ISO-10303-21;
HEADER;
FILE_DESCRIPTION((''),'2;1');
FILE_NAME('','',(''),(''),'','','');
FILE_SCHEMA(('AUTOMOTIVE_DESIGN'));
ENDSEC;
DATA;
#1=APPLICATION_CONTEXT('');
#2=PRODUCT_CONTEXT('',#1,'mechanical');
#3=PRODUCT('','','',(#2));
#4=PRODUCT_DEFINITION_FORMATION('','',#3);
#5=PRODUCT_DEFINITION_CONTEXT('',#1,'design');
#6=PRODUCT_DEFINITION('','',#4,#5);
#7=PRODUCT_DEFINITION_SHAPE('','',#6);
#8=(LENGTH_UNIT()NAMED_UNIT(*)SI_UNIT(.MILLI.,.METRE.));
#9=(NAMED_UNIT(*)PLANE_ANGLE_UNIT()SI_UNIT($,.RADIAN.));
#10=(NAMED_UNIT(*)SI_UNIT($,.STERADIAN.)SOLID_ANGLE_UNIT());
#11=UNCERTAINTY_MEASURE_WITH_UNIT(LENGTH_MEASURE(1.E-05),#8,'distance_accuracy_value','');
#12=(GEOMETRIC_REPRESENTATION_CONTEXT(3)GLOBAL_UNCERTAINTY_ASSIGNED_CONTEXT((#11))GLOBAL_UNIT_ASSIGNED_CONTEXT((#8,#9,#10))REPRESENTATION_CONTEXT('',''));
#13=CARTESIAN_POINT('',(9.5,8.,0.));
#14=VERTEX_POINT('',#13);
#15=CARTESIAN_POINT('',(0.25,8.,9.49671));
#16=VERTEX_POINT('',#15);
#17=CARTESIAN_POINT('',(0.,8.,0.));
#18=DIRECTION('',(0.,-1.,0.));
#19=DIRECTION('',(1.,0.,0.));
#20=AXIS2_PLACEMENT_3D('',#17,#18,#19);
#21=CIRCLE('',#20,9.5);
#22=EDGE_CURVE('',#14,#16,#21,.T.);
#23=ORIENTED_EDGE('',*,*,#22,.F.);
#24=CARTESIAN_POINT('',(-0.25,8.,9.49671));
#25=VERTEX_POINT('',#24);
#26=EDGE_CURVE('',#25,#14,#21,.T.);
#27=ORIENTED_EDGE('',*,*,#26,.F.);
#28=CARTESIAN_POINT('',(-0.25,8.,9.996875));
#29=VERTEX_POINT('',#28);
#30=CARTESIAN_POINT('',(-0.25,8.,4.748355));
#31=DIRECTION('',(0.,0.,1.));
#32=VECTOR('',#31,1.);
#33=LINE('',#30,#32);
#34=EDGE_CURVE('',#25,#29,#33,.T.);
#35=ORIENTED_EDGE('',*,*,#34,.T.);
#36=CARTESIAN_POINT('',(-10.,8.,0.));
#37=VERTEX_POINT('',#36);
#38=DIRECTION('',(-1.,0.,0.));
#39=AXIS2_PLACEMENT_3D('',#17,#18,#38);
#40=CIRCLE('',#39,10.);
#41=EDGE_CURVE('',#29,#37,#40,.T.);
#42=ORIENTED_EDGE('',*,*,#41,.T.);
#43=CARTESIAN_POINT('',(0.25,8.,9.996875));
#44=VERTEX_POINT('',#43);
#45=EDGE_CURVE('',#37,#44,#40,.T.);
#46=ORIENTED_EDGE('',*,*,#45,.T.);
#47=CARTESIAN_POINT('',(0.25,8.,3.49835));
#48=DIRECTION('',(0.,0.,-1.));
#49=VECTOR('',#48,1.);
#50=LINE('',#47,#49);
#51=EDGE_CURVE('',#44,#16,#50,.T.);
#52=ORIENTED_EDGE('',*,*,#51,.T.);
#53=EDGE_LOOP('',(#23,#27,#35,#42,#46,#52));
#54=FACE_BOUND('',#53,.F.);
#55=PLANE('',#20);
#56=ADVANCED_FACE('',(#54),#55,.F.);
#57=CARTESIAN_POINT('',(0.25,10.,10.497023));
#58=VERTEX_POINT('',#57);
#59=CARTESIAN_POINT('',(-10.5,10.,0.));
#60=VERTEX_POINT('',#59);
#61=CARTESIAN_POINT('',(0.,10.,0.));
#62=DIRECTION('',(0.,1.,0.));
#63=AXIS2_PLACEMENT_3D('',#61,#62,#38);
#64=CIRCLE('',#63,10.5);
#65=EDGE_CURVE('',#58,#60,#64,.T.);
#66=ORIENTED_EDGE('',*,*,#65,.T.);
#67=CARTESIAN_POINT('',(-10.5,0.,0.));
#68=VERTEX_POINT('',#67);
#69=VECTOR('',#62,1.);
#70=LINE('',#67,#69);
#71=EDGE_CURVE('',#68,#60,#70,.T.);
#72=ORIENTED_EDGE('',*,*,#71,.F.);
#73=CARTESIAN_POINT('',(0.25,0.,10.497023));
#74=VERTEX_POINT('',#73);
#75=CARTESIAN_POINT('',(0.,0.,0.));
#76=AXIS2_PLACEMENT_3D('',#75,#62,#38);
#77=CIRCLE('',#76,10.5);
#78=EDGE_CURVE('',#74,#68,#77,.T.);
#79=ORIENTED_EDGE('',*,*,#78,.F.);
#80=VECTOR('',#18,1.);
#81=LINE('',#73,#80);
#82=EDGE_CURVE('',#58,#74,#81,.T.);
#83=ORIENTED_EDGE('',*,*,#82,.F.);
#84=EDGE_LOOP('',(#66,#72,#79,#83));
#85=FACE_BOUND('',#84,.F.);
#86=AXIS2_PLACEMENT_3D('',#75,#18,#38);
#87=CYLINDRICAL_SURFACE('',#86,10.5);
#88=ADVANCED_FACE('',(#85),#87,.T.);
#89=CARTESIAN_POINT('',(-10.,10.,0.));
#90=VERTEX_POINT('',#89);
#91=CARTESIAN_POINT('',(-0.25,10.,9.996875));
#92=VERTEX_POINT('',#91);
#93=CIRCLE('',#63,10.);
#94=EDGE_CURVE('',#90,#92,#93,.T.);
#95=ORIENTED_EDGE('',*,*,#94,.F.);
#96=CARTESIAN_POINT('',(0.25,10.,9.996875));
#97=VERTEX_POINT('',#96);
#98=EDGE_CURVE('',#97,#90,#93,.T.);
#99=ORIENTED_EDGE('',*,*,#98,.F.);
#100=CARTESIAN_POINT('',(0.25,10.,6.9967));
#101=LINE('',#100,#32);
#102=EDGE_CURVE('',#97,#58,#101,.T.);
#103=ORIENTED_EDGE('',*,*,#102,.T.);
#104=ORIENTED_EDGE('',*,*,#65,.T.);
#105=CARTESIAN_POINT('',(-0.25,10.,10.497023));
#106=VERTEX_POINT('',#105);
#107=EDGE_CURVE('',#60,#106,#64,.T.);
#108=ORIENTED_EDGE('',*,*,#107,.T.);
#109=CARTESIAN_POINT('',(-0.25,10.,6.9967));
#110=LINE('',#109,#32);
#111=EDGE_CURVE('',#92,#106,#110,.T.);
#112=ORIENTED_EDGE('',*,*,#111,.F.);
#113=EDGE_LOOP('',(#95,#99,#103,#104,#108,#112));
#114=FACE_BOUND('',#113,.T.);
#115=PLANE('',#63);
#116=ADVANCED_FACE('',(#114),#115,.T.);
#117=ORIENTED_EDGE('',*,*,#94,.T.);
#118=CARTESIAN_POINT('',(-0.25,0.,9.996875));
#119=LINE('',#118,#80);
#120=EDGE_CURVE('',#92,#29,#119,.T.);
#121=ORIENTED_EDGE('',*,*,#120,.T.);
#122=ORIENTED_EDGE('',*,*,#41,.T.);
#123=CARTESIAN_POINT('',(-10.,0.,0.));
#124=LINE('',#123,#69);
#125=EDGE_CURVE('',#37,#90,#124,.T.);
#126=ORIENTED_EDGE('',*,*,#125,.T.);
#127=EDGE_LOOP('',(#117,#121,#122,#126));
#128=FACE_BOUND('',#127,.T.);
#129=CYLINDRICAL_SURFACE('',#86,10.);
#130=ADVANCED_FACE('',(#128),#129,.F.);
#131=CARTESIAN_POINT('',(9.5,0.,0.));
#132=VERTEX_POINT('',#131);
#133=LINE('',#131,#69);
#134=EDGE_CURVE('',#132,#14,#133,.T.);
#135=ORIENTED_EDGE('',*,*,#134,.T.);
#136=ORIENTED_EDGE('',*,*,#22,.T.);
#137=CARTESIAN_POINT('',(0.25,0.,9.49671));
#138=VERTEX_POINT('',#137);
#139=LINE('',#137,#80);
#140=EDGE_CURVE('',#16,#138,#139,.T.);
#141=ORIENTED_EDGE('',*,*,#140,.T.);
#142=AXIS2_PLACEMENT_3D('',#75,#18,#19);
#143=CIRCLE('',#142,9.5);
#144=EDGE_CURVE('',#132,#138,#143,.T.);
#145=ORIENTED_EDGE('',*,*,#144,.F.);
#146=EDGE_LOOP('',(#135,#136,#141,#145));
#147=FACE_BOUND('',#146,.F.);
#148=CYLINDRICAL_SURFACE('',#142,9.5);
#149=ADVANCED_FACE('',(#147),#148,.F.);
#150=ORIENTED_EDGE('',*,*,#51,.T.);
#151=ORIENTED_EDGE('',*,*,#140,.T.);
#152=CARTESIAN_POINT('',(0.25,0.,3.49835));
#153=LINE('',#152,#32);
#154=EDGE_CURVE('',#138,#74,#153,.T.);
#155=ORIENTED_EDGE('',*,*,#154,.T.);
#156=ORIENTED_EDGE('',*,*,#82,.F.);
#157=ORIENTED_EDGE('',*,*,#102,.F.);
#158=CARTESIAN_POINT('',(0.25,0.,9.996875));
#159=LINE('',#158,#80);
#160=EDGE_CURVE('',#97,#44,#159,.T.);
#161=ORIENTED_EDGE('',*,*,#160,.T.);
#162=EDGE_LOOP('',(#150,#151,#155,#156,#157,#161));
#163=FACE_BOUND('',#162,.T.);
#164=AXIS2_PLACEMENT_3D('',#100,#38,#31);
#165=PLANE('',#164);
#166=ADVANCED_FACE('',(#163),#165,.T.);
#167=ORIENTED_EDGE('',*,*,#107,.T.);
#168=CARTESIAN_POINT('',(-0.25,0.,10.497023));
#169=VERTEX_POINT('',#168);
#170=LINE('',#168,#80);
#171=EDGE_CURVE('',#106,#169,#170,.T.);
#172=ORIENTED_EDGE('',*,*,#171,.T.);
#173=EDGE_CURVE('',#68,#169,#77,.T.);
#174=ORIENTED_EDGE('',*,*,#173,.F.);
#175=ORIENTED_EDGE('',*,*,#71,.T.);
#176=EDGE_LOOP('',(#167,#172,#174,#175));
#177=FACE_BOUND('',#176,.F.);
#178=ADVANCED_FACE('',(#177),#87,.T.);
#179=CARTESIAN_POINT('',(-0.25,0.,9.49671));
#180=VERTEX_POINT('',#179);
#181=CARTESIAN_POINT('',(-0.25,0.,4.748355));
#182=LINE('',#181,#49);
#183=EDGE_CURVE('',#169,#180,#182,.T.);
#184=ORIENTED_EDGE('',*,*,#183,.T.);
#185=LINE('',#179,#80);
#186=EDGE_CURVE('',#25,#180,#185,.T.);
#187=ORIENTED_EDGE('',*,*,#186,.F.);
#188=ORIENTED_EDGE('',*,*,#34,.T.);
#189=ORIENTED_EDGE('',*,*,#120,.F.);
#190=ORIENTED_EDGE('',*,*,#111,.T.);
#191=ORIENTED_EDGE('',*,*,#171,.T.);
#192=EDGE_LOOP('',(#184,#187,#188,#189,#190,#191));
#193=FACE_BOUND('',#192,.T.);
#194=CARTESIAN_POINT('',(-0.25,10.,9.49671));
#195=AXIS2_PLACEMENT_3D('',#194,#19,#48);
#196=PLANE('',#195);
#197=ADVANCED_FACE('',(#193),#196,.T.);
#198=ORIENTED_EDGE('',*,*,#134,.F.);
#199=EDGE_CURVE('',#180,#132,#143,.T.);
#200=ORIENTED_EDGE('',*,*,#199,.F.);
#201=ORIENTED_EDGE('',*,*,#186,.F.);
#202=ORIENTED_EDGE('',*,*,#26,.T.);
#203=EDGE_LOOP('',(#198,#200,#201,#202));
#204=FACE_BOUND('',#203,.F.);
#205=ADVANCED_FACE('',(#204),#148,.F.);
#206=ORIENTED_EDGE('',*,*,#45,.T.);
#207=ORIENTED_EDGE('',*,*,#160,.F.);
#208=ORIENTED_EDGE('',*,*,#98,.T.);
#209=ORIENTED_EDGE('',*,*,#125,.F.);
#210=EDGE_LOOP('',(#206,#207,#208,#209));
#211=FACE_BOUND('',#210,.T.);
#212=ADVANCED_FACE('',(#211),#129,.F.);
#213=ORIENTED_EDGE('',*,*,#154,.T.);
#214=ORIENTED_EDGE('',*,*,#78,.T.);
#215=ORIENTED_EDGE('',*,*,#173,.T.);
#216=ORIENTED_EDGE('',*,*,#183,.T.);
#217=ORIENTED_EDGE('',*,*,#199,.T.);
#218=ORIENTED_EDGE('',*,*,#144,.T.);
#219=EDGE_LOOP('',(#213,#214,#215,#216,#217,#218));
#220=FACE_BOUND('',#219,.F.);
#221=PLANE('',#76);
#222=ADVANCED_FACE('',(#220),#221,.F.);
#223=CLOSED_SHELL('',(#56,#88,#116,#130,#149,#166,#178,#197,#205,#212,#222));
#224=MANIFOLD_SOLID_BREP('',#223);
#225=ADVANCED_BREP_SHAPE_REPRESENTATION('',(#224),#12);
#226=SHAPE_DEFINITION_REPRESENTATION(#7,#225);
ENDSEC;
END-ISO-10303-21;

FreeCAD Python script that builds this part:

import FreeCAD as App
import Part
import Sketcher

V = App.Vector
Q = App.Units.Quantity

doc = App.newDocument("Part")
body = doc.addObject("PartDesign::Body", "Body")

# Sketch on XZ plane
sketch1 = body.newObject("Sketcher::SketchObject", "Sketch")
sketch1.AttachmentSupport = (doc.getObject("XZ_Plane"), [""])
sketch1.MapMode = "FlatFace"
sketch1.addGeometry(Part.Circle(V(0, 0, 0), V(0, 0, 1), 10), False)
sketch1.addGeometry(Part.Circle(V(0, 0, 0), V(0, 0, 1), 10), False)
sketch1.addConstraint(Sketcher.Constraint("Coincident", 0, 3, -1, 1))
sketch1.addConstraint(Sketcher.Constraint("Coincident", 1, 3, -1, 1))
sketch1.addConstraint(Sketcher.Constraint("Diameter", 0, Q("21 mm")))
sketch1.addConstraint(Sketcher.Constraint("Diameter", 1, Q("20 mm")))
pad1 = body.newObject("PartDesign::Pad", "Pad")
pad1.Profile = sketch1
pad1.Length = 10
pad1.Reversed = True

# Sketch on XZ plane
sketch2 = body.newObject("Sketcher::SketchObject", "Sketch001")
sketch2.AttachmentSupport = (doc.getObject("XZ_Plane"), [""])
sketch2.MapMode = "FlatFace"
sketch2.addGeometry(Part.Circle(V(0, 0, 0), V(0, 0, 1), 10), False)
sketch2.addGeometry(Part.Circle(V(0, 0, 0), V(0, 0, 1), 10), False)
sketch2.addConstraint(Sketcher.Constraint("Coincident", 0, 3, -1, 1))
sketch2.addConstraint(Sketcher.Constraint("Coincident", 1, 3, -1, 1))
sketch2.addConstraint(Sketcher.Constraint("Diameter", 1, Q("19 mm")))
sketch2.addConstraint(Sketcher.Constraint("Diameter", 0, Q("20 mm")))
pad2 = body.newObject("PartDesign::Pad", "Pad001")
pad2.Profile = sketch2
pad2.Length = 8
pad2.Reversed = True

# Sketch on XZ plane
sketch3 = body.newObject("Sketcher::SketchObject", "Sketch002")
sketch3.AttachmentSupport = (doc.getObject("XZ_Plane"), [""])
sketch3.MapMode = "FlatFace"
sketch3.AttachmentOffset = App.Placement(V(0, 0, -10), App.Rotation())
sketch3.addGeometry(Part.LineSegment(V(0.2, 7, 0), V(-0.2, 7, 0)), False)
sketch3.addGeometry(Part.LineSegment(V(-0.2, 7, 0), V(-0.2, 12, 0)), False)
sketch3.addGeometry(Part.LineSegment(V(-0.2, 12, 0), V(0.2, 12, 0)), False)
sketch3.addGeometry(Part.LineSegment(V(0.2, 12, 0), V(0.2, 7, 0)), False)
sketch3.addConstraint(Sketcher.Constraint("Coincident", 0, 2, 1, 1))
sketch3.addConstraint(Sketcher.Constraint("Coincident", 1, 2, 2, 1))
sketch3.addConstraint(Sketcher.Constraint("Coincident", 2, 2, 3, 1))
sketch3.addConstraint(Sketcher.Constraint("Coincident", 3, 2, 0, 1))
sketch3.addConstraint(Sketcher.Constraint("Horizontal", 0))
sketch3.addConstraint(Sketcher.Constraint("Vertical", 1))
sketch3.addConstraint(Sketcher.Constraint("Horizontal", 2))
sketch3.addConstraint(Sketcher.Constraint("Vertical", 3))
sketch3.addConstraint(Sketcher.Constraint("DistanceY", 1, 1, 1, 2, Q("5 mm")))
sketch3.addConstraint(Sketcher.Constraint("DistanceX", 0, 2, 0, 1, Q("0.5 mm")))
sketch3.addConstraint(Sketcher.Constraint("DistanceX", 0, 2, -1, 1, Q("0.25 mm")))
sketch3.addConstraint(Sketcher.Constraint("DistanceY", -1, 1, 0, 2, Q("6.9967 mm")))
pocket1 = body.newObject("PartDesign::Pocket", "Pocket")
pocket1.Profile = sketch3
pocket1.Type = "ThroughAll"
pocket1.Reversed = True

doc.recompute()
